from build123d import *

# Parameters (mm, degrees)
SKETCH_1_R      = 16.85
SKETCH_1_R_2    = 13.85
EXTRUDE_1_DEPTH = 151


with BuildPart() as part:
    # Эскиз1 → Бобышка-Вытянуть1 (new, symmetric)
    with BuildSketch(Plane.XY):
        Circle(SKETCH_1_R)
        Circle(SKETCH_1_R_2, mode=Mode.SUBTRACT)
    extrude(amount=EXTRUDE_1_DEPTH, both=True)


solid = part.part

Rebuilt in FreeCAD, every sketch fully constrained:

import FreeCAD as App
import Part
import Sketcher
from FreeCAD import Vector

doc = App.newDocument("Part")
body = doc.addObject("PartDesign::Body", "Body")

# Sketch on XY plane
sketch1 = body.newObject("Sketcher::SketchObject", "Sketch")
sketch1.AttachmentSupport = (doc.getObject("XY_Plane"), [""])
sketch1.MapMode = "FlatFace"
sketch1.addGeometry([
    Part.Circle(Vector(0, 0, 0), Vector(0, 0, 1), 17),
    Part.Circle(Vector(0, 0, 0), Vector(0, 0, 1), 14),
], False)
sketch1.addConstraint([
    Sketcher.Constraint("Coincident", 0, 3, -1, 1),
    Sketcher.Constraint("Coincident", 1, 3, -1, 1),
    Sketcher.Constraint("Diameter", 0, 33.7),
    Sketcher.Constraint("Diameter", 1, 27.7),
])
pad1 = body.newObject("PartDesign::Pad", "Pad")
pad1.Profile = sketch1
pad1.Length = 302
pad1.Midplane = True

doc.recompute()
